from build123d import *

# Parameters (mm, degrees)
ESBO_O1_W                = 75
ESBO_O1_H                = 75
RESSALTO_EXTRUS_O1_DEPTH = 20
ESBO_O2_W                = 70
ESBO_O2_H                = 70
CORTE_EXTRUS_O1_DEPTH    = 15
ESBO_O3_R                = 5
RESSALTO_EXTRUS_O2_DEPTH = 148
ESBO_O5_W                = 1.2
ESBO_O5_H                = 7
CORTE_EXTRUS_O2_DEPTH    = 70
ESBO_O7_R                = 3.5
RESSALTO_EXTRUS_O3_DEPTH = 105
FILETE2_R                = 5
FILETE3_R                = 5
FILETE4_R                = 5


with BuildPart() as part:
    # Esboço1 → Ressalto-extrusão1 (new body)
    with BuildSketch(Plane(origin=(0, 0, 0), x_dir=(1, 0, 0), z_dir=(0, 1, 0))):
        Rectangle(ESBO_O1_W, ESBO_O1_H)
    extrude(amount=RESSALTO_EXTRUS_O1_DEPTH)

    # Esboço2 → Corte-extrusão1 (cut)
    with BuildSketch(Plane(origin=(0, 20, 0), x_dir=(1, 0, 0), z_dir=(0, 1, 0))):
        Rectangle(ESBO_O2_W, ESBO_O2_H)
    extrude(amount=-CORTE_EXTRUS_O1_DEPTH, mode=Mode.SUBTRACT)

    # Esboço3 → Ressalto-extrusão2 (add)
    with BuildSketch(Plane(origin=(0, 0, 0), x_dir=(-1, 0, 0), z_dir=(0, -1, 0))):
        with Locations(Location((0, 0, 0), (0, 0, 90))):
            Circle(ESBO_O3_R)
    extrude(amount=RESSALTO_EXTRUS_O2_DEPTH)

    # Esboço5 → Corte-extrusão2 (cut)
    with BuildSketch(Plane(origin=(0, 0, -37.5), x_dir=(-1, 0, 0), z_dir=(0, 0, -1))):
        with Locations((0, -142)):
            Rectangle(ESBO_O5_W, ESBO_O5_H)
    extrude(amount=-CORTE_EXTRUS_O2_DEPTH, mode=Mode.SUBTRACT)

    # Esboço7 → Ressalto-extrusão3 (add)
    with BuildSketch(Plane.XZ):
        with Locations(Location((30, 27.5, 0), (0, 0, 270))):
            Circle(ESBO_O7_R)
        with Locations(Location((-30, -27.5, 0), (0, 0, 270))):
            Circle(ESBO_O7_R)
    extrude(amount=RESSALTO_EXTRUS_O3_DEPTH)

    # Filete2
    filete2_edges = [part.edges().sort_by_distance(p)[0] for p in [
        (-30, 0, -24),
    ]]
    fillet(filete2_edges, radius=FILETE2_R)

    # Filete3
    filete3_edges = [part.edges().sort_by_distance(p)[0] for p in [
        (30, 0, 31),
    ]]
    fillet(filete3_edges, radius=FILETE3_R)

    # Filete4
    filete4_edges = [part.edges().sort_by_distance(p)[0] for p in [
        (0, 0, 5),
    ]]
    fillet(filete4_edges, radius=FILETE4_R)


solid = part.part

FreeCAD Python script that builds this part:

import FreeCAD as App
import Part
import Sketcher
from FreeCAD import Vector


def edges_at(feature, points):
    """Names of the edges that pass closest to the given points."""
    edges = feature.Shape.Edges
    near = lambda p: min(range(len(edges)), key=lambda i: edges[i].distToShape(Part.Vertex(*p))[0])
    return sorted({f"Edge{near(p) + 1}" for p in points})

doc = App.newDocument("Part")
body = doc.addObject("PartDesign::Body", "Body")

# Sketch on XZ plane
sketch1 = body.newObject("Sketcher::SketchObject", "Sketch")
sketch1.AttachmentSupport = (doc.getObject("XZ_Plane"), [""])
sketch1.MapMode = "FlatFace"
sketch1.addGeometry([
    Part.LineSegment(Vector(-38, -38, 0), Vector(-38, 38, 0)),
    Part.LineSegment(Vector(-38, 38, 0), Vector(38, 38, 0)),
    Part.LineSegment(Vector(38, 38, 0), Vector(38, -38, 0)),
    Part.LineSegment(Vector(38, -38, 0), Vector(-38, -38, 0)),
], False)
sketch1.addConstraint([
    Sketcher.Constraint("Coincident", 0, 2, 1, 1),
    Sketcher.Constraint("Coincident", 1, 2, 2, 1),
    Sketcher.Constraint("Coincident", 2, 2, 3, 1),
    Sketcher.Constraint("Coincident", 3, 2, 0, 1),
    Sketcher.Constraint("Vertical", 0),
    Sketcher.Constraint("Horizontal", 1),
    Sketcher.Constraint("Vertical", 2),
    Sketcher.Constraint("Horizontal", 3),
    Sketcher.Constraint("Symmetric", 0, 2, 2, 2, -1, 1),
    Sketcher.Constraint("Equal", 3, 0),
    Sketcher.Constraint("DistanceX", 1, 1, 1, 2, 75.0),
])
pad1 = body.newObject("PartDesign::Pad", "Pad")
pad1.Profile = sketch1
pad1.Length = 20
pad1.Reversed = True

# Sketch on XZ plane
sketch2 = body.newObject("Sketcher::SketchObject", "Sketch001")
sketch2.AttachmentSupport = (doc.getObject("XZ_Plane"), [""])
sketch2.MapMode = "FlatFace"
sketch2.AttachmentOffset = App.Placement(Vector(0, 0, -20), App.Rotation())
sketch2.addGeometry([
    Part.LineSegment(Vector(-35, -35, 0), Vector(-35, 35, 0)),
    Part.LineSegment(Vector(-35, 35, 0), Vector(35, 35, 0)),
    Part.LineSegment(Vector(35, 35, 0), Vector(35, -35, 0)),
    Part.LineSegment(Vector(35, -35, 0), Vector(-35, -35, 0)),
], False)
sketch2.addConstraint([
    Sketcher.Constraint("Coincident", 0, 2, 1, 1),
    Sketcher.Constraint("Coincident", 1, 2, 2, 1),
    Sketcher.Constraint("Coincident", 2, 2, 3, 1),
    Sketcher.Constraint("Coincident", 3, 2, 0, 1),
    Sketcher.Constraint("Vertical", 0),
    Sketcher.Constraint("Horizontal", 1),
    Sketcher.Constraint("Vertical", 2),
    Sketcher.Constraint("Horizontal", 3),
    Sketcher.Constraint("Symmetric", 0, 2, 2, 2, -1, 1),
    Sketcher.Constraint("Equal", 3, 0),
    Sketcher.Constraint("DistanceX", 1, 1, 1, 2, 70.0),
])
pocket1 = body.newObject("PartDesign::Pocket", "Pocket")
pocket1.Profile = sketch2
pocket1.Length = 15
pocket1.Reversed = True

# Sketch on XZ plane
sketch3 = body.newObject("Sketcher::SketchObject", "Sketch002")
sketch3.AttachmentSupport = (doc.getObject("XZ_Plane"), [""])
sketch3.MapMode = "FlatFace"
sketch3.addGeometry(Part.Circle(Vector(0, 0, 0), Vector(0, 0, 1), 5), False)
sketch3.addConstraint([
    Sketcher.Constraint("Coincident", 0, 3, -1, 1),
    Sketcher.Constraint("Diameter", 0, 10.0),
])
pad2 = body.newObject("PartDesign::Pad", "Pad001")
pad2.Profile = sketch3
pad2.Length = 148

# Sketch on XY plane
sketch4 = body.newObject("Sketcher::SketchObject", "Sketch003")
sketch4.AttachmentSupport = (doc.getObject("XY_Plane"), [""])
sketch4.MapMode = "FlatFace"
sketch4.AttachmentOffset = App.Placement(Vector(0, 0, -37.5), App.Rotation())
sketch4.addGeometry([
    Part.LineSegment(Vector(0.6, -138.5, 0), Vector(0.6, -145.5, 0)),
    Part.LineSegment(Vector(0.6, -145.5, 0), Vector(-0.6, -145.5, 0)),
    Part.LineSegment(Vector(-0.6, -145.5, 0), Vector(-0.6, -138.5, 0)),
    Part.LineSegment(Vector(-0.6, -138.5, 0), Vector(0.6, -138.5, 0)),
], False)
sketch4.addConstraint([
    Sketcher.Constraint("Coincident", 0, 2, 1, 1),
    Sketcher.Constraint("Coincident", 1, 2, 2, 1),
    Sketcher.Constraint("Coincident", 2, 2, 3, 1),
    Sketcher.Constraint("Coincident", 3, 2, 0, 1),
    Sketcher.Constraint("Vertical", 0),
    Sketcher.Constraint("Horizontal", 1),
    Sketcher.Constraint("Vertical", 2),
    Sketcher.Constraint("Horizontal", 3),
    Sketcher.Constraint("DistanceY", 0, 2, 0, 1, 7.0),
    Sketcher.Constraint("DistanceX", 1, 2, 1, 1, 1.2),
    Sketcher.Constraint("DistanceX", -1, 1, 0, 2, 0.6),
    Sketcher.Constraint("DistanceY", 0, 2, -1, 1, 145.5),
])
pocket2 = body.newObject("PartDesign::Pocket", "Pocket001")
pocket2.Profile = sketch4
pocket2.Length = 70
pocket2.Reversed = True

# Sketch on XZ plane
sketch5 = body.newObject("Sketcher::SketchObject", "Sketch004")
sketch5.AttachmentSupport = (doc.getObject("XZ_Plane"), [""])
sketch5.MapMode = "FlatFace"
sketch5.addGeometry([
    Part.Circle(Vector(30, 27.5, 0), Vector(0, 0, 1), 3.5),
    Part.Circle(Vector(-30, -27.5, 0), Vector(0, 0, 1), 3.5),
], False)
sketch5.addConstraint([
    Sketcher.Constraint("Equal", 0, 1),
    Sketcher.Constraint("Symmetric", 0, 3, 1, 3, -1, 1),
    Sketcher.Constraint("Diameter", 0, 7.0),
    Sketcher.Constraint("DistanceX", -1, 1, 0, 3, 30.0),
    Sketcher.Constraint("DistanceY", 1, 3, 0, 3, 55.0),
])
pad3 = body.newObject("PartDesign::Pad", "Pad002")
pad3.Profile = sketch5
pad3.Length = 105
doc.recompute()

fillet = body.newObject("PartDesign::Fillet", "Fillet")
fillet.Base = (pad3, edges_at(pad3, [(-30, 0, -24)]))
fillet.Radius = 5
doc.recompute()

fillet2 = body.newObject("PartDesign::Fillet", "Fillet001")
fillet2.Base = (fillet, edges_at(fillet, [(30, 0, 31)]))
fillet2.Radius = 5
doc.recompute()

fillet3 = body.newObject("PartDesign::Fillet", "Fillet002")
fillet3.Base = (fillet2, edges_at(fillet2, [(0, 0, 5)]))
fillet3.Radius = 5

doc.recompute()
